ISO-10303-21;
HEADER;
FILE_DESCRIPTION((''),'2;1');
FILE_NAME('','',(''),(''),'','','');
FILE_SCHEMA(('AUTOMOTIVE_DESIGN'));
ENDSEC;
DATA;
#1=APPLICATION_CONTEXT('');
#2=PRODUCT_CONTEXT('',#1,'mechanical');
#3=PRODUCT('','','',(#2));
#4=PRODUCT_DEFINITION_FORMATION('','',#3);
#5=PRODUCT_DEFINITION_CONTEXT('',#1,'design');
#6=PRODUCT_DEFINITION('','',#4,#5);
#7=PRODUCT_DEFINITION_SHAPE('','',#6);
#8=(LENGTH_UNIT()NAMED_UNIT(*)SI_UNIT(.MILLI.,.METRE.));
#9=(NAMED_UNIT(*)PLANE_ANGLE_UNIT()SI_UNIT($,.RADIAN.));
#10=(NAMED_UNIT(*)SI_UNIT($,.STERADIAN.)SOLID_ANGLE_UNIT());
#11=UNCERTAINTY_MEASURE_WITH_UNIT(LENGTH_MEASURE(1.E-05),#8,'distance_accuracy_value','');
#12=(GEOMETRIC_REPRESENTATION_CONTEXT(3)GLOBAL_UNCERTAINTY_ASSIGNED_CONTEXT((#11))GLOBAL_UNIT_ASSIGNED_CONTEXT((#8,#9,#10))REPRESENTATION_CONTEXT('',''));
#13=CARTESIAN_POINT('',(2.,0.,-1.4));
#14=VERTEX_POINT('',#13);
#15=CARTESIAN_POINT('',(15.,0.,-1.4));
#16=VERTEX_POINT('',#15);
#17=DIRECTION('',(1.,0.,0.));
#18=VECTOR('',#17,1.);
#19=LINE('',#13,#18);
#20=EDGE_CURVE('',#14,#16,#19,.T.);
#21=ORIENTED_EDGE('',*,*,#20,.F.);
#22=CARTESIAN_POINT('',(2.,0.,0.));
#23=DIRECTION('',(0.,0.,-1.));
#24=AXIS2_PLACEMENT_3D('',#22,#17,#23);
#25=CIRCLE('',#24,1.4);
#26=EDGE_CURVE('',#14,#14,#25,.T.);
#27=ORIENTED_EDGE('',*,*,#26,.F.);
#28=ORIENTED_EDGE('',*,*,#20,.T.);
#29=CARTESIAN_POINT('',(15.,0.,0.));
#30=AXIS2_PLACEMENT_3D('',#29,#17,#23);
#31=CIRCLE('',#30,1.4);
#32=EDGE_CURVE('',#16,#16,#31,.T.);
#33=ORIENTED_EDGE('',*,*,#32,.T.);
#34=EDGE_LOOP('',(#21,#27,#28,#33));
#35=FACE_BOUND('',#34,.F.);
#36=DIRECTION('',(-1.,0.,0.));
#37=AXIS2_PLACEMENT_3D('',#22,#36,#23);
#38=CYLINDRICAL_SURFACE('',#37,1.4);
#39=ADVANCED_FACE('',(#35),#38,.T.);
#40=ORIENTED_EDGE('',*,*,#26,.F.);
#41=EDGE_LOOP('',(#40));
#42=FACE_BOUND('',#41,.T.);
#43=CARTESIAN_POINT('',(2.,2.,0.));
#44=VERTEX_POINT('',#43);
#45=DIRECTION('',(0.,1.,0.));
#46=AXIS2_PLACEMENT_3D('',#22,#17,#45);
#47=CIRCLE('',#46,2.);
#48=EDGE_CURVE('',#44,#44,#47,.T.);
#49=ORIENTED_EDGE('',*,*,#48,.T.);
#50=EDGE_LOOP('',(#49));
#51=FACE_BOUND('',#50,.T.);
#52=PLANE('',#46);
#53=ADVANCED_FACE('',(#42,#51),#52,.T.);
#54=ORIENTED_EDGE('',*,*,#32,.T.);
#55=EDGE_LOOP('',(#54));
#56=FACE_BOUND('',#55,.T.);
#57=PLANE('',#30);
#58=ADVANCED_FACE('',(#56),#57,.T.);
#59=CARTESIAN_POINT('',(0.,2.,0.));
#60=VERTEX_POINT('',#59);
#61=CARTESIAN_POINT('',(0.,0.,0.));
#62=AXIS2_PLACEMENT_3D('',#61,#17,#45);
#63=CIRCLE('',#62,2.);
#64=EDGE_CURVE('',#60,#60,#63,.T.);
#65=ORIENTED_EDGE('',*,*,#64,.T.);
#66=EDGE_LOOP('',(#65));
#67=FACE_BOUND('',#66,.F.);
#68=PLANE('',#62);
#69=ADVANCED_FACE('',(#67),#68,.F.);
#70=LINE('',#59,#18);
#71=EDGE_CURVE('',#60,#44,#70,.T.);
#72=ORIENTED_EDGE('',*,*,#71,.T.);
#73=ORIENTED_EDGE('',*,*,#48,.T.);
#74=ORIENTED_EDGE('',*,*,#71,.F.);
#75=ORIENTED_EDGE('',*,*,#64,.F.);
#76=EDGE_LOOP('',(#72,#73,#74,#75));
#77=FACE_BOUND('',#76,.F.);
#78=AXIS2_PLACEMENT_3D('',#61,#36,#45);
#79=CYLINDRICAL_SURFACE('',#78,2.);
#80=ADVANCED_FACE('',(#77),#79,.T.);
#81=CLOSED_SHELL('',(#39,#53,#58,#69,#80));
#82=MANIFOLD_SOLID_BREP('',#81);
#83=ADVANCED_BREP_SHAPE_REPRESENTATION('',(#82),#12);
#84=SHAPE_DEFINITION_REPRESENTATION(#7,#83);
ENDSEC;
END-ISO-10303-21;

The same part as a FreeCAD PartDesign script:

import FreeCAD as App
import Part
import Sketcher
from FreeCAD import Vector

doc = App.newDocument("Part")
body = doc.addObject("PartDesign::Body", "Body")

# Sketch on YZ plane
sketch1 = doc.addObject("Sketcher::SketchObject", "Sketch")
body.addObject(sketch1)
sketch1.AttachmentSupport = (doc.YZ_Plane, [""])
sketch1.MapMode = "FlatFace"
sketch1.addGeometry(Part.Circle(Vector(0, 0, 0), Vector(0, 0, 1), 2), False)
sketch1.addConstraint([
    Sketcher.Constraint("Coincident", 0, 3, -1, 1),
    Sketcher.Constraint("Diameter", 0, 4.0),
])
pad1 = doc.addObject("PartDesign::Pad", "Pad")
body.addObject(pad1)
pad1.Profile = sketch1
pad1.Length = 2

# Sketch on YZ plane
sketch2 = doc.addObject("Sketcher::SketchObject", "Sketch001")
body.addObject(sketch2)
sketch2.AttachmentSupport = (doc.YZ_Plane, [""])
sketch2.MapMode = "FlatFace"
sketch2.AttachmentOffset = App.Placement(Vector(0, 0, 2), App.Rotation())
sketch2.addGeometry(Part.Circle(Vector(0, 0, 0), Vector(0, 0, 1), 1.4), False)
sketch2.addConstraint([
    Sketcher.Constraint("Coincident", 0, 3, -1, 1),
    Sketcher.Constraint("Diameter", 0, 2.8),
])
pad2 = doc.addObject("PartDesign::Pad", "Pad001")
body.addObject(pad2)
pad2.Profile = sketch2
pad2.Length = 13

doc.recompute()
